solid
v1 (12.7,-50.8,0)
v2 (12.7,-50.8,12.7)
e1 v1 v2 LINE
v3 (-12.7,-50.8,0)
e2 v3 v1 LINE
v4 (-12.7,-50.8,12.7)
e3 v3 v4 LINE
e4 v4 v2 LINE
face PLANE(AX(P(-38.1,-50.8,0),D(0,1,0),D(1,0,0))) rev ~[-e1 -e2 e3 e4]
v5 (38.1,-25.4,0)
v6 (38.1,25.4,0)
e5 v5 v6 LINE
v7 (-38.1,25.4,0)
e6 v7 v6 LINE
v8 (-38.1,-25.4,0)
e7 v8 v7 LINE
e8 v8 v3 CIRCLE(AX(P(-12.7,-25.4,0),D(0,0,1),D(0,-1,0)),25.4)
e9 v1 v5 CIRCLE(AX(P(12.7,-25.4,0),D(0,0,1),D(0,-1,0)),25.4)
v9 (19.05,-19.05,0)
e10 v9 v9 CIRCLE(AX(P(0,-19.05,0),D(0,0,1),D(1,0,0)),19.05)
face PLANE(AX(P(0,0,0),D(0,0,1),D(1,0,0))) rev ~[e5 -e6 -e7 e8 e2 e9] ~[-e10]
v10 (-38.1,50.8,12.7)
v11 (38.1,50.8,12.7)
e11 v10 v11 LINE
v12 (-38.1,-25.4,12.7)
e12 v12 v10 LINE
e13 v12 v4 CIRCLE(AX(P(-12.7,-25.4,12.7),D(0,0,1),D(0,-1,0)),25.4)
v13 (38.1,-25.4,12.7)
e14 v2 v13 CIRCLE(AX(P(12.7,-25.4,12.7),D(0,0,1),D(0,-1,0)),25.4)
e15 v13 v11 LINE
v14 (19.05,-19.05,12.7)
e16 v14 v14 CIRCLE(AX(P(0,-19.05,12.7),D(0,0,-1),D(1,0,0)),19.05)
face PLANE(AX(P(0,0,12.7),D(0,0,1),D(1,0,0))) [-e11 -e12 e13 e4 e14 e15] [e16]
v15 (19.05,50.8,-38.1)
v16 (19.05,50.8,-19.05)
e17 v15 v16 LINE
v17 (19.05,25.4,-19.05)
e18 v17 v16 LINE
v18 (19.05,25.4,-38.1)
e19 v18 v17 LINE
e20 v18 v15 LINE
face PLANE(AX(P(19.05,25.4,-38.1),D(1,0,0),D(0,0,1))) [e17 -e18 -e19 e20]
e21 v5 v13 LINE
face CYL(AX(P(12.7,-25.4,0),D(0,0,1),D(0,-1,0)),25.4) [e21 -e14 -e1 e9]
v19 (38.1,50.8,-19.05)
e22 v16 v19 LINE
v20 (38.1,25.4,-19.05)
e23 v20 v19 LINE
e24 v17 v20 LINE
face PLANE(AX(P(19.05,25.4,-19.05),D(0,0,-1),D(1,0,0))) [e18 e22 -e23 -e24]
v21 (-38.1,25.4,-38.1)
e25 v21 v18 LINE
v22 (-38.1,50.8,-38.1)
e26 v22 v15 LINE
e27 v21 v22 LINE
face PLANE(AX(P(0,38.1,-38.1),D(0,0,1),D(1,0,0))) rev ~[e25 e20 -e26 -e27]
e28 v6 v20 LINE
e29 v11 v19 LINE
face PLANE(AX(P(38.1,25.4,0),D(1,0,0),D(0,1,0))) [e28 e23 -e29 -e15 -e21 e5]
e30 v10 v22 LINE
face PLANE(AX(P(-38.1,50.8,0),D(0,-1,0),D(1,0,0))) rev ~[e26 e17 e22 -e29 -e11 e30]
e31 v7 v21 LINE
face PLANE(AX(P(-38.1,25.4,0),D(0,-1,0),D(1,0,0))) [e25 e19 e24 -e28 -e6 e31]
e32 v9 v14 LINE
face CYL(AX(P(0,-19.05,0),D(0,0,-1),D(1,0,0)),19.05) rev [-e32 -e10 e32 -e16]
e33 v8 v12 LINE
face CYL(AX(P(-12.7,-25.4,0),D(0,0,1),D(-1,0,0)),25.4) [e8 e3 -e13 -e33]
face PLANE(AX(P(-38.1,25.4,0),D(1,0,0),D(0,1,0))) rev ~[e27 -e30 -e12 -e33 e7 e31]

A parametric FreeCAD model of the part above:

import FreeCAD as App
import Part
import Sketcher

V = App.Vector
Q = App.Units.Quantity


def edges_at(feature, points):
    """Names of the edges that pass closest to the given points."""
    edges = feature.Shape.Edges
    near = lambda p: min(range(len(edges)), key=lambda i: edges[i].distToShape(Part.Vertex(*p))[0])
    return sorted({f"Edge{near(p) + 1}" for p in points})


def add_polygon(sketch, points):
    """Adds a closed chain of lines whose ends are joined by coincident constraints."""
    first, n = sketch.GeometryCount, len(points)
    for a, b in zip(points, points[1:] + points[:1]):
        sketch.addGeometry(Part.LineSegment(App.Vector(*a, 0), App.Vector(*b, 0)), False)
    for i in range(n):
        sketch.addConstraint(Sketcher.Constraint("Coincident", first + i, 2, first + (i + 1) % n, 1))

doc = App.newDocument("Part")
params = doc.addObject("Spreadsheet::Sheet", "Params")
for row, (alias, value) in enumerate([
    ("sketch1_width", "3 in"),
    ("sketch1_height", "4 in"),
    ("pad1_length", "0.5 in"),
    ("sketch2_diameter", "1.5 in"),
    ("pocket1_length", "1 in"),
    ("sketch3_width", "3 in"),
    ("sketch3_height", "1 in"),
    ("pad2_length", "1.5 in"),
    ("sketch4_width", "0.75 in"),
    ("pocket2_length", "1 in"),
    ("fillet_radius", "1 in"),
], start=1):
    params.set(f"A{row}", alias)
    params.set(f"B{row}", "=" + value)
    params.setAlias(f"B{row}", alias)

body = doc.addObject("PartDesign::Body", "Body")

sketch1 = body.newObject("Sketcher::SketchObject", "Sketch")
sketch1.AttachmentSupport = (doc.getObject("XY_Plane"), [""])
sketch1.MapMode = "FlatFace"
add_polygon(sketch1, [(-38, 51), (-38, -51), (38, -51), (38, 51)])
sketch1.addConstraint([
    Sketcher.Constraint("Vertical", 0),
    Sketcher.Constraint("Horizontal", 1),
    Sketcher.Constraint("Vertical", 2),
    Sketcher.Constraint("Horizontal", 3),
    Sketcher.Constraint("Symmetric", 0, 2, 2, 2, -1, 1),
    Sketcher.Constraint("DistanceX", 1, 1, 1, 2, Q("3 in")),
    Sketcher.Constraint("DistanceY", 0, 2, 0, 1, Q("4 in")),
])
sketch1.setExpression("Constraints[9]", "Params.sketch1_width")
sketch1.setExpression("Constraints[10]", "Params.sketch1_height")
pad1 = body.newObject("PartDesign::Pad", "Pad")
pad1.Profile = sketch1
pad1.setExpression("Length", "Params.pad1_length")

sketch2 = body.newObject("Sketcher::SketchObject", "Sketch001")
sketch2.AttachmentSupport = (doc.getObject("XY_Plane"), [""])
sketch2.MapMode = "FlatFace"
sketch2.addGeometry(Part.Circle(V(0, -19, 0), V(0, 0, 1), 19), False)
sketch2.addConstraint([
    Sketcher.Constraint("PointOnObject", 0, 3, -2),
    Sketcher.Constraint("Diameter", 0, Q("1.5 in")),
    Sketcher.Constraint("DistanceY", 0, 3, -1, 1, Q("0.75 in")),
])
sketch2.setExpression("Constraints[1]", "Params.sketch2_diameter")
pocket1 = body.newObject("PartDesign::Pocket", "Pocket")
pocket1.Profile = sketch2
pocket1.setExpression("Length", "Params.pocket1_length")
pocket1.Reversed = True

sketch3 = body.newObject("Sketcher::SketchObject", "Sketch002")
sketch3.AttachmentSupport = (doc.getObject("XY_Plane"), [""])
sketch3.MapMode = "FlatFace"
add_polygon(sketch3, [(-38, 51), (-38, 25), (38, 25), (38, 51)])
sketch3.addConstraint([
    Sketcher.Constraint("Vertical", 0),
    Sketcher.Constraint("Horizontal", 1),
    Sketcher.Constraint("Vertical", 2),
    Sketcher.Constraint("Horizontal", 3),
    Sketcher.Constraint("DistanceX", 1, 1, 1, 2, Q("3 in")),
    Sketcher.Constraint("DistanceY", 0, 2, 0, 1, Q("1 in")),
    Sketcher.Constraint("DistanceY", -1, 1, 0, 2, Q("1 in")),
    Sketcher.Constraint("DistanceX", 0, 2, -1, 1, Q("1.5 in")),
])
sketch3.setExpression("Constraints[8]", "Params.sketch3_width")
sketch3.setExpression("Constraints[9]", "Params.sketch3_height")
pad2 = body.newObject("PartDesign::Pad", "Pad001")
pad2.Profile = sketch3
pad2.setExpression("Length", "Params.pad2_length")
pad2.Reversed = True

sketch4 = body.newObject("Sketcher::SketchObject", "Sketch003")
sketch4.AttachmentSupport = (doc.getObject("XZ_Plane"), [""])
sketch4.MapMode = "FlatFace"
sketch4.AttachmentOffset = App.Placement(V(0, 0, -1 * 25.4), App.Rotation())
add_polygon(sketch4, [(19, -19), (19, -38), (38, -38), (38, -19)])
sketch4.addConstraint([
    Sketcher.Constraint("Vertical", 0),
    Sketcher.Constraint("Horizontal", 1),
    Sketcher.Constraint("Vertical", 2),
    Sketcher.Constraint("Horizontal", 3),
    Sketcher.Constraint("Equal", 3, 0),
    Sketcher.Constraint("DistanceX", 1, 1, 1, 2, Q("0.75 in")),
    Sketcher.Constraint("DistanceY", 0, 2, -1, 1, Q("1.5 in")),
    Sketcher.Constraint("DistanceX", -1, 1, 1, 2, Q("1.5 in")),
])
sketch4.setExpression("Constraints[9]", "Params.sketch4_width")
pocket2 = body.newObject("PartDesign::Pocket", "Pocket001")
pocket2.Profile = sketch4
pocket2.setExpression("Length", "Params.pocket2_length")
doc.recompute()

fillet = body.newObject("PartDesign::Fillet", "Fillet")
fillet.Base = (pocket2, edges_at(pocket2, [(38.1, -50.8, 6.35), (-38.1, -50.8, 6.35)]))
fillet.setExpression("Radius", "Params.fillet_radius")

doc.recompute()
